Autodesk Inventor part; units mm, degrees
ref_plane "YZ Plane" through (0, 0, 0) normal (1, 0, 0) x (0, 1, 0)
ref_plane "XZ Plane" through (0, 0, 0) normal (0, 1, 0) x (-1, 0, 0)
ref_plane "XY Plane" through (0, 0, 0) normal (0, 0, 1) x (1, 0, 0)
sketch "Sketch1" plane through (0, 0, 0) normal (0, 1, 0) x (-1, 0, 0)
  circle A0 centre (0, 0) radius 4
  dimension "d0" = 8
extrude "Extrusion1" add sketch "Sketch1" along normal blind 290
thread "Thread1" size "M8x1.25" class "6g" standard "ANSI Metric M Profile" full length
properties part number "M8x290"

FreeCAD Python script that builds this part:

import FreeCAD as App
import Part
import Sketcher

V = App.Vector

doc = App.newDocument("Part")
body = doc.addObject("PartDesign::Body", "Body")

# Sketch on XZ plane
sketch1 = body.newObject("Sketcher::SketchObject", "Sketch")
sketch1.AttachmentSupport = (doc.getObject("XZ_Plane"), [""])
sketch1.MapMode = "FlatFace"
sketch1.addGeometry(Part.Circle(V(0, 0, 0), V(0, 0, 1), 4), False)
sketch1.addConstraint([
    Sketcher.Constraint("Coincident", 0, 3, -1, 1),
    Sketcher.Constraint("Diameter", 0, 8.0),
])
pad1 = body.newObject("PartDesign::Pad", "Pad")
pad1.Profile = sketch1
pad1.Length = 290
pad1.Reversed = True

doc.recompute()
